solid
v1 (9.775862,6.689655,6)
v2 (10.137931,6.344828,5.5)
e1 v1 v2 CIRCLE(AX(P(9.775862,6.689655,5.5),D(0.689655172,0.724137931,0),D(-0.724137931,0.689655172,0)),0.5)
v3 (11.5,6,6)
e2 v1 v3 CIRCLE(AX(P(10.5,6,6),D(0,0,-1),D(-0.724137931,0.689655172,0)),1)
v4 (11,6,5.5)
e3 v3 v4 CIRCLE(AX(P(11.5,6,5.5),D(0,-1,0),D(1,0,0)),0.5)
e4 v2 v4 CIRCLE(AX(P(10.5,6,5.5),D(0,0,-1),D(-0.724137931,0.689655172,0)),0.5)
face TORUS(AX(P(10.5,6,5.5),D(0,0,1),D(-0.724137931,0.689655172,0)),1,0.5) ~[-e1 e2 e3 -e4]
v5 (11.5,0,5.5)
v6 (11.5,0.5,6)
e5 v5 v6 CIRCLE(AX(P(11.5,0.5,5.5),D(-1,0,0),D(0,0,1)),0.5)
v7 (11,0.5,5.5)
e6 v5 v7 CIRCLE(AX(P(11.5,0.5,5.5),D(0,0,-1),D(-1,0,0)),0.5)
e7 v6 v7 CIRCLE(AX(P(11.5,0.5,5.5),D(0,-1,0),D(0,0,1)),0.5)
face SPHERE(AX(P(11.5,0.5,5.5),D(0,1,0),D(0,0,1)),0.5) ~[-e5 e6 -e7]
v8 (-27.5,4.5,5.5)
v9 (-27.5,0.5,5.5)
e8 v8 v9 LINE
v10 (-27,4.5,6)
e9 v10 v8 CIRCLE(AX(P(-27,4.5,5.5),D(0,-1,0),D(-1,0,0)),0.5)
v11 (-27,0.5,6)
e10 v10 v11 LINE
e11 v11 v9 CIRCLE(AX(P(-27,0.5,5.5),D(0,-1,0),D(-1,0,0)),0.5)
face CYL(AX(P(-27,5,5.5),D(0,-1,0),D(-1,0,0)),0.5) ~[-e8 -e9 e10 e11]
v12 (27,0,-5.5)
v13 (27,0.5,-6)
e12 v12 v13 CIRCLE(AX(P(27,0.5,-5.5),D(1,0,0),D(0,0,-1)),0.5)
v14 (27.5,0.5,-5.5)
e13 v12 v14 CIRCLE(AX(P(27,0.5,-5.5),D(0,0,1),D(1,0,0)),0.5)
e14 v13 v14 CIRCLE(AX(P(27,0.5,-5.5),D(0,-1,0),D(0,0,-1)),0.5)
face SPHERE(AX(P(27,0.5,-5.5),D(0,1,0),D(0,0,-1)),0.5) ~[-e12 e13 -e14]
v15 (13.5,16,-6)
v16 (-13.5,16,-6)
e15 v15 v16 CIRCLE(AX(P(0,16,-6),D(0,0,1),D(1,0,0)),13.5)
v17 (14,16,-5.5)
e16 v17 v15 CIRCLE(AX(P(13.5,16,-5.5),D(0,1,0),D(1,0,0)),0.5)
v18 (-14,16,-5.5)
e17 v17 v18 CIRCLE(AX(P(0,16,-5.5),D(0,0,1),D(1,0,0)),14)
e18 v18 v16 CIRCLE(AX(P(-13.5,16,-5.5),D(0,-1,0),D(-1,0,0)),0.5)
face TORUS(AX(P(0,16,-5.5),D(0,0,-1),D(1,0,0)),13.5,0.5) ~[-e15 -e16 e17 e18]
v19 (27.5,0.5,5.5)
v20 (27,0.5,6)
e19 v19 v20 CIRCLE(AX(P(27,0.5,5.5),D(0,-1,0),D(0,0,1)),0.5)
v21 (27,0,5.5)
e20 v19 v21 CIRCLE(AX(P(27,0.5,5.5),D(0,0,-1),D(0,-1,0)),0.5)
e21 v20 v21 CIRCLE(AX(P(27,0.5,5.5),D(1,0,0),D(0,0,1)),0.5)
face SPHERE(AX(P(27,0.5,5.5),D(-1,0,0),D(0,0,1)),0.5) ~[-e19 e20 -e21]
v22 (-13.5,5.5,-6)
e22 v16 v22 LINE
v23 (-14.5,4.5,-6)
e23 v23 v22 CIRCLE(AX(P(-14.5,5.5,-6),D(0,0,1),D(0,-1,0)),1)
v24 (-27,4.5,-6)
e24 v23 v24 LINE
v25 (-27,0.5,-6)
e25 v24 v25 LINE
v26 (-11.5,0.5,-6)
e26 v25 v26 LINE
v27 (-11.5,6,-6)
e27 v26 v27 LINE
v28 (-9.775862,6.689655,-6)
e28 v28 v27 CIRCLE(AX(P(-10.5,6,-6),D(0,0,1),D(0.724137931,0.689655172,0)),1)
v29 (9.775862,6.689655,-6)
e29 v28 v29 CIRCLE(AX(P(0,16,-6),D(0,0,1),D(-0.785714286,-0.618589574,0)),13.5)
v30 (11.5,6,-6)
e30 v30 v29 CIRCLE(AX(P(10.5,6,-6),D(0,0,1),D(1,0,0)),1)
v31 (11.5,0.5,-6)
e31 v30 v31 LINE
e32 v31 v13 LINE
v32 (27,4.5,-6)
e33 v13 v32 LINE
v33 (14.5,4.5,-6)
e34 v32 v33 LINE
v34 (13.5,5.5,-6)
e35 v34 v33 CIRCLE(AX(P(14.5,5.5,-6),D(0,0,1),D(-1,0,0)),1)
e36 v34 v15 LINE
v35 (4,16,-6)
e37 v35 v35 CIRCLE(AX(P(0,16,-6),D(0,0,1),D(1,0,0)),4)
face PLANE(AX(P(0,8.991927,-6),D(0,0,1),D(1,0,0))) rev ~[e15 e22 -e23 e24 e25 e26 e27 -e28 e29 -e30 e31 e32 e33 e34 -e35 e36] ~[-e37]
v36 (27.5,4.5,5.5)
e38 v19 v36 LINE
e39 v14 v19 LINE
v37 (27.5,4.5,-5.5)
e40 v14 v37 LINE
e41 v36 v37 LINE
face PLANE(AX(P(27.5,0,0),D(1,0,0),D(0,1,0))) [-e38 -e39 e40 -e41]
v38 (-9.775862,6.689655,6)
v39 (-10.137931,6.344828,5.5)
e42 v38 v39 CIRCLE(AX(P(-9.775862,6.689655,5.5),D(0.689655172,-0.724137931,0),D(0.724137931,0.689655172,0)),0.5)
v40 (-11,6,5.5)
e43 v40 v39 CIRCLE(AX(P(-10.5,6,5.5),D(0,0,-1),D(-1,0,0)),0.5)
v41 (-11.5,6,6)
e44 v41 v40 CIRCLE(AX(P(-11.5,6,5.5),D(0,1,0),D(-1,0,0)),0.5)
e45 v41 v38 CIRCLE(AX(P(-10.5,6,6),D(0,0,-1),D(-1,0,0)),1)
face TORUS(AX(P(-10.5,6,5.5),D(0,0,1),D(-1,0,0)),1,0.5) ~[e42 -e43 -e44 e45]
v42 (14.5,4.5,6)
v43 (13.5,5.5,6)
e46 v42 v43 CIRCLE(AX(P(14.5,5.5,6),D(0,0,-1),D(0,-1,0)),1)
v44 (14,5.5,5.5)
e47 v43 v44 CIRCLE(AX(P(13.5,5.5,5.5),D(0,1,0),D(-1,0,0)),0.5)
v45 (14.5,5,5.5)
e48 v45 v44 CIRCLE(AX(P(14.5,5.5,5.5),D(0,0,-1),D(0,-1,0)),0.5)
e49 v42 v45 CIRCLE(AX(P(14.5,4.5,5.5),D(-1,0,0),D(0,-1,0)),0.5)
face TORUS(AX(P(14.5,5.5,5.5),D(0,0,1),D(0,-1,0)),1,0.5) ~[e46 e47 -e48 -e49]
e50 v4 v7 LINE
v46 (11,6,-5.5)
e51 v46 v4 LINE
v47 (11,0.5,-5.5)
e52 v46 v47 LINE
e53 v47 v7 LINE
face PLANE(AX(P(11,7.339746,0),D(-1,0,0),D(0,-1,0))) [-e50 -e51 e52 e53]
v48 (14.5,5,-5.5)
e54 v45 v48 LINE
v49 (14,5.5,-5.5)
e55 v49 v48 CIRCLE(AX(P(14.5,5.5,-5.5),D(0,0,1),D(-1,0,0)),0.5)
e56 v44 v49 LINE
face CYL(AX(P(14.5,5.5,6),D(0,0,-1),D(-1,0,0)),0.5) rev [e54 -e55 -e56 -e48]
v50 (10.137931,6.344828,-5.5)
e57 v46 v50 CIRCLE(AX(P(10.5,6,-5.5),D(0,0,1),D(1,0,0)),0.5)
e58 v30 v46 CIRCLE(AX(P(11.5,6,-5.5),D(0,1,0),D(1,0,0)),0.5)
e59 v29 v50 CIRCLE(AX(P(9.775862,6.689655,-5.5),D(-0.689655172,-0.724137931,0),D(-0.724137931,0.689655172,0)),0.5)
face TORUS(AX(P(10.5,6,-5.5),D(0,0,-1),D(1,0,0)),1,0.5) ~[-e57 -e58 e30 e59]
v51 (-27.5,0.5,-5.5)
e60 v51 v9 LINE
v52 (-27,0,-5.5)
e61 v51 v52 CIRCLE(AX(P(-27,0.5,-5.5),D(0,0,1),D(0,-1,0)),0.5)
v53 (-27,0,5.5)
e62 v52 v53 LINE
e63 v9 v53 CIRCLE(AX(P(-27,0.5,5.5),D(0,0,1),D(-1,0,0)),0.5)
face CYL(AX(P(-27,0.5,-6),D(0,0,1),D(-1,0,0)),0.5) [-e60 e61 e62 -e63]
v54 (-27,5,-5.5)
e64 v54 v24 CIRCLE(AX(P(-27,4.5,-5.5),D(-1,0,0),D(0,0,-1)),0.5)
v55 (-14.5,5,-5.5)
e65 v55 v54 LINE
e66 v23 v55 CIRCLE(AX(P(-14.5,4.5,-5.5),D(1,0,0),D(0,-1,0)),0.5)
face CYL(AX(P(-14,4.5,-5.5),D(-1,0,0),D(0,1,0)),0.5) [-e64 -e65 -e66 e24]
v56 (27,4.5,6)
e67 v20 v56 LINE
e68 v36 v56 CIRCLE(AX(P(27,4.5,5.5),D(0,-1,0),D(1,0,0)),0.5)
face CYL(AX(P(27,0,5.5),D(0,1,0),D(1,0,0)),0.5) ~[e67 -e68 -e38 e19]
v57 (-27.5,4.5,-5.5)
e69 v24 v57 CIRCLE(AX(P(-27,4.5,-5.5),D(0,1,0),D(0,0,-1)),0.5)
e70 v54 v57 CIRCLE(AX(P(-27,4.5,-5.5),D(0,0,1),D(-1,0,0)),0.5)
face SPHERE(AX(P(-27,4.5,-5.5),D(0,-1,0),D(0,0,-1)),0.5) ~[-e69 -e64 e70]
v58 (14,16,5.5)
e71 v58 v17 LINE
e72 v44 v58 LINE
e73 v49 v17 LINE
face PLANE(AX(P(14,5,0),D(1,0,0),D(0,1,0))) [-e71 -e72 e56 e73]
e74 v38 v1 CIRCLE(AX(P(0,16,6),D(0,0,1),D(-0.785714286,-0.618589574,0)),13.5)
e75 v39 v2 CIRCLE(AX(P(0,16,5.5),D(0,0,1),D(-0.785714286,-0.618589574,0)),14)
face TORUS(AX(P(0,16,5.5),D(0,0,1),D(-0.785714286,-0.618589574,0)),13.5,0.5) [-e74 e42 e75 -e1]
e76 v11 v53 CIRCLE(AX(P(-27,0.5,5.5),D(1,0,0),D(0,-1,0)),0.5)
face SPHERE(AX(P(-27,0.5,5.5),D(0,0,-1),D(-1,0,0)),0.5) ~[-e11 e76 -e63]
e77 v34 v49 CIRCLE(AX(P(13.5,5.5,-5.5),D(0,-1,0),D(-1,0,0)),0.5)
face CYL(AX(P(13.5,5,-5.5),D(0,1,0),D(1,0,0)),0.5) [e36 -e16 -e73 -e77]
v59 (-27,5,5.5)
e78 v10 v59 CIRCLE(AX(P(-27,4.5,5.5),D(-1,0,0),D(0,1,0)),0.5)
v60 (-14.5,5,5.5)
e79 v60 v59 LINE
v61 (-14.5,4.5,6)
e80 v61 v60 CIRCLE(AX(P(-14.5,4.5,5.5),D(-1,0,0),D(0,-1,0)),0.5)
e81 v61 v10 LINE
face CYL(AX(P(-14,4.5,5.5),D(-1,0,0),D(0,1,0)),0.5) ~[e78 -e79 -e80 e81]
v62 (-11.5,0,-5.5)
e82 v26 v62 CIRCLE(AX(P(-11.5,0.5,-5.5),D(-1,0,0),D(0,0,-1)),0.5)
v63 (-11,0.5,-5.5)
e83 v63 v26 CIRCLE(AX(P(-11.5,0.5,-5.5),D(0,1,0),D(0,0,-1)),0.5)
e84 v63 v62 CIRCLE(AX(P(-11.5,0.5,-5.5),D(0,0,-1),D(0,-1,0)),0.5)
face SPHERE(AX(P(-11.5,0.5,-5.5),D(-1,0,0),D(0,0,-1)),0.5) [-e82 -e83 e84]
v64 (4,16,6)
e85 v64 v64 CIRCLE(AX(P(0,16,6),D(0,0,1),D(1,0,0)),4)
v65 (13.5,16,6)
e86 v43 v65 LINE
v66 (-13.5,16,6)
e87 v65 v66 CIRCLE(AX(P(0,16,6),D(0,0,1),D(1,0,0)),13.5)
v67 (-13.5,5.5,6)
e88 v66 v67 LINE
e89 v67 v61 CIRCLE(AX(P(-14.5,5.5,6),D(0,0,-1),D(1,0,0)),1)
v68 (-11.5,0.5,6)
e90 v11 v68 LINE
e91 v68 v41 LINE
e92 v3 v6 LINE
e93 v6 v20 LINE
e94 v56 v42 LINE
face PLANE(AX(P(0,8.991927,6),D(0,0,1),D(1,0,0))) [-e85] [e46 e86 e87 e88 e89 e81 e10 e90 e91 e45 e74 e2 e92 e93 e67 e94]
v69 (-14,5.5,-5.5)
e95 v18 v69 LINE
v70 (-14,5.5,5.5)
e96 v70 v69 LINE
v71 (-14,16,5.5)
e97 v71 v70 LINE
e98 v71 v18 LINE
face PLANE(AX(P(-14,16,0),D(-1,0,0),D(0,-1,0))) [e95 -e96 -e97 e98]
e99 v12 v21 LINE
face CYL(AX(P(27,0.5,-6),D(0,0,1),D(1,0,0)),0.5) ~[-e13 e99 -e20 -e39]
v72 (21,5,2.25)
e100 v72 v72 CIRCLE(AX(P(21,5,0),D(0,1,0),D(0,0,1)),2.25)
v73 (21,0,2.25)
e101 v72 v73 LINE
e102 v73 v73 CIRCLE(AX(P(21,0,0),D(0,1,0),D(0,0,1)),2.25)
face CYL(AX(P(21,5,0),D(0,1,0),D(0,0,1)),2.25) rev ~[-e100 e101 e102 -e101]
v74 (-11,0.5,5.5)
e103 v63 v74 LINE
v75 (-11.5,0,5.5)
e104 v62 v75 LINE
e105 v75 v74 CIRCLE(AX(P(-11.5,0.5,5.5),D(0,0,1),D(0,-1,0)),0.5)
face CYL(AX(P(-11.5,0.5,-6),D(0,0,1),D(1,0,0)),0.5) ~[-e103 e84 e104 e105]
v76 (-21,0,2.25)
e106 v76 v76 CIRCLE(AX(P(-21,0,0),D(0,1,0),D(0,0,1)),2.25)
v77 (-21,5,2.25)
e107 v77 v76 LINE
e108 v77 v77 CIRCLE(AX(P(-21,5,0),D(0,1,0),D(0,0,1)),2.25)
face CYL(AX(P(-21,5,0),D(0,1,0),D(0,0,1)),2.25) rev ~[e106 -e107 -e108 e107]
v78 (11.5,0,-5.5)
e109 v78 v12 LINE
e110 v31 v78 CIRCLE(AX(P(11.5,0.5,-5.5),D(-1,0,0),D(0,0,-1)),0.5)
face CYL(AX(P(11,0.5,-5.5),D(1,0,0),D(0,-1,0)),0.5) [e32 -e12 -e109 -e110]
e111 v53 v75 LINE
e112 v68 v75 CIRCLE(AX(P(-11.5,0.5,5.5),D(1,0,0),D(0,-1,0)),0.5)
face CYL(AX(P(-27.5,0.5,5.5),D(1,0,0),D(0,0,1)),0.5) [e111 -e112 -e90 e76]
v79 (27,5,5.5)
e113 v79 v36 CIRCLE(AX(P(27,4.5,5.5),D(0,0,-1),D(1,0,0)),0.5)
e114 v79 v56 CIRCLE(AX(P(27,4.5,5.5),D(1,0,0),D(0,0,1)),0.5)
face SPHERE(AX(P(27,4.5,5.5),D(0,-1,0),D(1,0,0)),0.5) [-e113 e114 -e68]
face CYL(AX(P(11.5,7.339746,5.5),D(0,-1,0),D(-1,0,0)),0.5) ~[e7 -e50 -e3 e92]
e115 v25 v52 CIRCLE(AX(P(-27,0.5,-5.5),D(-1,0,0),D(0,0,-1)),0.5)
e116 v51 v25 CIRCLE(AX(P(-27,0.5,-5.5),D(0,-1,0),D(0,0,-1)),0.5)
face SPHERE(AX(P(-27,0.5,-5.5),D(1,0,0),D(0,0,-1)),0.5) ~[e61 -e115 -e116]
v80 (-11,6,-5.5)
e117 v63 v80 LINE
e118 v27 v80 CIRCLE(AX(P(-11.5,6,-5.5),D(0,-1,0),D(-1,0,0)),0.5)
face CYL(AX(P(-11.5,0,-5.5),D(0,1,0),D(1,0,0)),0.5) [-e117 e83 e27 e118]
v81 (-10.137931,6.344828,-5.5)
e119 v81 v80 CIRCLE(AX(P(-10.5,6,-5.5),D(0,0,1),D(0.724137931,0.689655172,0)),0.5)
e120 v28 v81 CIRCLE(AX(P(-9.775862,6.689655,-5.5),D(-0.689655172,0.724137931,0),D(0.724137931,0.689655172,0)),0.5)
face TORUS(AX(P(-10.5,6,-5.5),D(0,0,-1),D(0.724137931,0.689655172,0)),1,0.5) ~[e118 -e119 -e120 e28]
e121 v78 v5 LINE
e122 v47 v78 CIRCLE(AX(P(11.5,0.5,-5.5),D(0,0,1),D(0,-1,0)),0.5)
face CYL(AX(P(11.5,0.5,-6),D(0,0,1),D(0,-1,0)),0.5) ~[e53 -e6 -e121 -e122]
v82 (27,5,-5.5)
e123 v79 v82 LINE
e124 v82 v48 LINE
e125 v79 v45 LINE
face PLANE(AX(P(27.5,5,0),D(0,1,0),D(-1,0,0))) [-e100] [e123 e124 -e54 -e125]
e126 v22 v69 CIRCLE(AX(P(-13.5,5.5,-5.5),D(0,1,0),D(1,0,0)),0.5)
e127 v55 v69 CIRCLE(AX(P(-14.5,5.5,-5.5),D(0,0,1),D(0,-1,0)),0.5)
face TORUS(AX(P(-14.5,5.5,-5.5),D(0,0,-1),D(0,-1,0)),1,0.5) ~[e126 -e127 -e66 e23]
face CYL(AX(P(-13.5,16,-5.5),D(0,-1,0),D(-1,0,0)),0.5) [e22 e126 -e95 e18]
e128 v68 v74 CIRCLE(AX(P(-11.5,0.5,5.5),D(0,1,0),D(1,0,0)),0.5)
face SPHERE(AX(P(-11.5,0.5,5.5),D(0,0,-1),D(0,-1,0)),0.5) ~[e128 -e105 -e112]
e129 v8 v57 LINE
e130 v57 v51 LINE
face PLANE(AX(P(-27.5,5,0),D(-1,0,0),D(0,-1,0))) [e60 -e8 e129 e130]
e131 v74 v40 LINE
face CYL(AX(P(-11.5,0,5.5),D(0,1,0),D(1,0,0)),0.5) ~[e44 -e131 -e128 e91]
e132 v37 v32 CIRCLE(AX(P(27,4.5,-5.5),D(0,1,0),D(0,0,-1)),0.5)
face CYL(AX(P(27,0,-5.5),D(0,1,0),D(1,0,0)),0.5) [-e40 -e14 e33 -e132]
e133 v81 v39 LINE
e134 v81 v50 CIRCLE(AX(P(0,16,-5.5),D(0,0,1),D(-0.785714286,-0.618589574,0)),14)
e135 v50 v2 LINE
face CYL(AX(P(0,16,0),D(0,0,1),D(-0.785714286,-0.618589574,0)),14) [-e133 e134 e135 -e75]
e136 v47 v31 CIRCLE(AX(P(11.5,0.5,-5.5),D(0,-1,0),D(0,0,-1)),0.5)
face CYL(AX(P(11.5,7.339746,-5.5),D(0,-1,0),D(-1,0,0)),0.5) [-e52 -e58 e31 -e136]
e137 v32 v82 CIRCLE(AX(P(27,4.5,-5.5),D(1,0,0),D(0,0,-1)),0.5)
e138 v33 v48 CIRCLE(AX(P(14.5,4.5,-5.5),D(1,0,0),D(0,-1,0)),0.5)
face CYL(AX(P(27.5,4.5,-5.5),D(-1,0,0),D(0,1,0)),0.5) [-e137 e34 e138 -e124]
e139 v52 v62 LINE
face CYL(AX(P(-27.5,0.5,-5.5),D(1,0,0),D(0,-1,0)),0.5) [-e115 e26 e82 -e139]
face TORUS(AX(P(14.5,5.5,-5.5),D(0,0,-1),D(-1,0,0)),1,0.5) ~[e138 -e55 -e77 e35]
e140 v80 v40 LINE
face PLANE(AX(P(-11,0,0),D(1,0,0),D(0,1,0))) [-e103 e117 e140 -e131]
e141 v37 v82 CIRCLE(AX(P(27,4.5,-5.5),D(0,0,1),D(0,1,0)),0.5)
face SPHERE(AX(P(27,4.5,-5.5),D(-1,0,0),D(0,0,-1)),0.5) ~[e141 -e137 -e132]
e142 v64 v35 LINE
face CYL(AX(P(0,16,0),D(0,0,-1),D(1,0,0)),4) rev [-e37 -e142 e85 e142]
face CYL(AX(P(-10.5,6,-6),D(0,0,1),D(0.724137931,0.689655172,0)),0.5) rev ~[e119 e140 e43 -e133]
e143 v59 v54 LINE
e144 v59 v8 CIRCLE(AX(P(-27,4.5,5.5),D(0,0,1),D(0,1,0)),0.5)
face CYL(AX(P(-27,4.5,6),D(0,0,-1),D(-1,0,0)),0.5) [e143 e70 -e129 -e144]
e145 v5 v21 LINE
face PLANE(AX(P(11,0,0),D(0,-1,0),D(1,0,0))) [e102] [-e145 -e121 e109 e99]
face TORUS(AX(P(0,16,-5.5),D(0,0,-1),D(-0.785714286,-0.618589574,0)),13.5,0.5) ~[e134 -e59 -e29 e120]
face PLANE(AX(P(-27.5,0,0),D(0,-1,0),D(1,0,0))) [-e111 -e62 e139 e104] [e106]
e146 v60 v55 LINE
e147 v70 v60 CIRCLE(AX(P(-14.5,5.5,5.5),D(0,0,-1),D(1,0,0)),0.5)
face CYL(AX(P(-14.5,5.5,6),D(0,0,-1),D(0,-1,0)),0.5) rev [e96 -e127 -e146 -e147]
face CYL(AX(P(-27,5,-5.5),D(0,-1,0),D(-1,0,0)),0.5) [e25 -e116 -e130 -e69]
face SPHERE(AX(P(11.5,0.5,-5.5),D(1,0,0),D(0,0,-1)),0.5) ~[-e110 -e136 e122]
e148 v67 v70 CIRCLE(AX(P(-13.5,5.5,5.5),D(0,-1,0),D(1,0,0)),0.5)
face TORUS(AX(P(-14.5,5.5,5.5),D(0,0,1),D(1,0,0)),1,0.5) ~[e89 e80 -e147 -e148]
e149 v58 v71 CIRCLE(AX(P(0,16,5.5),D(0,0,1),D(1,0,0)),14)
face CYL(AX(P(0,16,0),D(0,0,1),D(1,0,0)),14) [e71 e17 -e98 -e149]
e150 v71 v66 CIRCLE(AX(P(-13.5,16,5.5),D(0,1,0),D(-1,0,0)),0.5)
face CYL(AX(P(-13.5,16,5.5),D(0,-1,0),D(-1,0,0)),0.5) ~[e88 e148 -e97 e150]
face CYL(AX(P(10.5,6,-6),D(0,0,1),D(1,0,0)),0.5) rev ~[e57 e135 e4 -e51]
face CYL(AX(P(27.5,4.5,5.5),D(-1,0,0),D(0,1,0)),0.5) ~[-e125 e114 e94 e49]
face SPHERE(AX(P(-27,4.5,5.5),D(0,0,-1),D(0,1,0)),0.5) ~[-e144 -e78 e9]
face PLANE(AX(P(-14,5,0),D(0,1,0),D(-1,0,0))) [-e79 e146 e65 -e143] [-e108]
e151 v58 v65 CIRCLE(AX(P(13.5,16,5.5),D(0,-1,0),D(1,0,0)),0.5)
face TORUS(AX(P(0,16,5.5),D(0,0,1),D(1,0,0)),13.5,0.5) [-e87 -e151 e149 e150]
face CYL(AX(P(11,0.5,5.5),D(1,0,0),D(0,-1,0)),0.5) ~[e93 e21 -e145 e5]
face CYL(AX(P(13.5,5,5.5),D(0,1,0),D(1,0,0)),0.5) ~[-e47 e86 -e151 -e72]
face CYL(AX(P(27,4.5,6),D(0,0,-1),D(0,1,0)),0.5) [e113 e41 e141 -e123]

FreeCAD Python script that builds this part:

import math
import FreeCAD as App
import Part
import Sketcher
Q = App.Units.Quantity


def edges_at(feature, points):
    """Names of the edges that pass closest to the given points."""
    edges = feature.Shape.Edges
    near = lambda p: min(range(len(edges)), key=lambda i: edges[i].distToShape(Part.Vertex(*p))[0])
    return sorted({f"Edge{near(p) + 1}" for p in points})

doc = App.newDocument("Part")
params = doc.addObject("Spreadsheet::Sheet", "Params")
for row, (alias, value) in enumerate([
    ("sketch1_diameter", "8 mm"),
    ("sketch1_radius", "14 mm"),
    ("sketch1_height", "5 mm"),
    ("sketch1_height2", "11 mm"),
    ("sketch1_width", "16.5 mm"),
    ("pad1_length", "12 mm"),
    ("fillet_radius", "0.5 mm"),
    ("sketch2_diameter", "4.5 mm"),
    ("sketch3_diameter", "4.5 mm"),
], start=1):
    params.set(f"A{row}", alias)
    params.set(f"B{row}", "=" + value)
    params.setAlias(f"B{row}", alias)

body = doc.addObject("PartDesign::Body", "Body")

# Sketch on XY plane
sketch1 = body.newObject("Sketcher::SketchObject", "Sketch")
sketch1.AttachmentSupport = (doc.getObject("XY_Plane"), [""])
sketch1.MapMode = "FlatFace"
sketch1.addGeometry([
    Part.LineSegment(App.Vector(-27.5, 5, 0), App.Vector(-27.5, 0, 0)),  # 0
    Part.LineSegment(App.Vector(-27.5, 0, 0), App.Vector(-11, 0, 0)),  # 1
    Part.LineSegment(App.Vector(-11, 0, 0), App.Vector(-11, 7.3, 0)),  # 2
    Part.ArcOfCircle(Part.Circle(App.Vector(0, 16, 0), App.Vector(0, 0, 1), 14), math.radians(-142), math.radians(-38)),  # 3
    Part.LineSegment(App.Vector(11, 7.3, 0), App.Vector(11, 0, 0)),  # 4
    Part.LineSegment(App.Vector(11, 0, 0), App.Vector(27.5, 0, 0)),  # 5
    Part.LineSegment(App.Vector(27.5, 0, 0), App.Vector(27.5, 5, 0)),  # 6
    Part.LineSegment(App.Vector(27.5, 5, 0), App.Vector(14, 5, 0)),  # 7
    Part.LineSegment(App.Vector(14, 5, 0), App.Vector(14, 16, 0)),  # 8
    Part.ArcOfCircle(Part.Circle(App.Vector(0, 16, 0), App.Vector(0, 0, 1), 14), math.radians(0), math.radians(180)),  # 9
    Part.LineSegment(App.Vector(-14, 16, 0), App.Vector(-14, 5, 0)),  # 10
    Part.LineSegment(App.Vector(-14, 5, 0), App.Vector(-27.5, 5, 0)),  # 11
    Part.Circle(App.Vector(0, 16, 0), App.Vector(0, 0, 1), 4),  # 12
], False)
sketch1.addConstraint([
    Sketcher.Constraint("Coincident", 0, 2, 1, 1),
    Sketcher.Constraint("Coincident", 1, 2, 2, 1),
    Sketcher.Constraint("Coincident", 2, 2, 3, 1),
    Sketcher.Constraint("Coincident", 3, 2, 4, 1),
    Sketcher.Constraint("Coincident", 4, 2, 5, 1),
    Sketcher.Constraint("Coincident", 5, 2, 6, 1),
    Sketcher.Constraint("Coincident", 6, 2, 7, 1),
    Sketcher.Constraint("Coincident", 7, 2, 8, 1),
    Sketcher.Constraint("Tangent", 8, 2, 9, 1),
    Sketcher.Constraint("Tangent", 9, 2, 10, 1),
    Sketcher.Constraint("Coincident", 10, 2, 11, 1),
    Sketcher.Constraint("Coincident", 11, 2, 0, 1),
    Sketcher.Constraint("Vertical", 0),
    Sketcher.Constraint("Horizontal", 1),
    Sketcher.Constraint("Vertical", 2),
    Sketcher.Constraint("Vertical", 4),
    Sketcher.Constraint("Horizontal", 5),
    Sketcher.Constraint("Vertical", 6),
    Sketcher.Constraint("Horizontal", 7),
    Sketcher.Constraint("Vertical", 8),
    Sketcher.Constraint("Vertical", 10),
    Sketcher.Constraint("Horizontal", 11),
    Sketcher.Constraint("Coincident", 9, 3, 3, 3),
    Sketcher.Constraint("Coincident", 12, 3, 3, 3),
    Sketcher.Constraint("Equal", 3, 9),
    Sketcher.Constraint("Symmetric", 1, 2, 4, 2, -1, 1),
    Sketcher.Constraint("Symmetric", 0, 2, 5, 2, -2),
    Sketcher.Constraint("Symmetric", 7, 2, 10, 2, -2),
    Sketcher.Constraint("Diameter", 12, Q("8 mm")),
    Sketcher.Constraint("Radius", 3, Q("14 mm")),
    Sketcher.Constraint("DistanceY", 0, 2, 0, 1, Q("5 mm")),
    Sketcher.Constraint("DistanceY", 8, 1, 8, 2, Q("11 mm")),
    Sketcher.Constraint("DistanceX", 1, 1, 1, 2, Q("16.5 mm")),
    Sketcher.Constraint("DistanceX", 7, 2, 7, 1, Q("13.5 mm")),
])
sketch1.setExpression("Constraints[28]", "Params.sketch1_diameter")
sketch1.setExpression("Constraints[29]", "Params.sketch1_radius")
sketch1.setExpression("Constraints[30]", "Params.sketch1_height")
sketch1.setExpression("Constraints[31]", "Params.sketch1_height2")
sketch1.setExpression("Constraints[32]", "Params.sketch1_width")
pad1 = body.newObject("PartDesign::Pad", "Pad")
pad1.Profile = sketch1
pad1.setExpression("Length", "Params.pad1_length")
pad1.Midplane = True
doc.recompute()

fillet = body.newObject("PartDesign::Fillet", "Fillet")
fillet.Base = (pad1, edges_at(pad1, [
    (11, 3.67, 6),
    (-19.25, 0, -6),
    (-27.5, 2.5, -6),
    (-20.75, 5, -6),
    (-14, 10.5, -6),
    (0, 30, -6),
    (14, 10.5, -6),
    (20.75, 5, -6),
    (19.25, 0, 6),
    (27.5, 2.5, -6),
    (19.25, 0, -6),
    (11, 3.67, -6),
    (0, 2, -6),
    (-11, 3.67, -6),
    (27.5, 2.5, 6),
    (-11, 0, 0),
    (-27.5, 0, 0),
    (-27.5, 5, 0),
    (-14, 5, 0),
    (14, 5, 0),
    (27.5, 5, 0),
    (27.5, 0, 0),
    (11, 0, 0),
    (11, 7.34, 0),
    (-11, 7.34, 0),
    (20.75, 5, 6),
    (14, 10.5, 6),
    (0, 30, 6),
    (-14, 10.5, 6),
    (-20.75, 5, 6),
    (-27.5, 2.5, 6),
    (-19.25, 0, 6),
    (-11, 3.67, 6),
    (0, 2, 6),
]))
fillet.setExpression("Radius", "Params.fillet_radius")

# Sketch on XZ plane
sketch2 = body.newObject("Sketcher::SketchObject", "Sketch001")
sketch2.AttachmentSupport = (doc.getObject("XZ_Plane"), [""])
sketch2.MapMode = "FlatFace"
sketch2.AttachmentOffset = App.Placement(App.Vector(0, 0, -5), App.Rotation())
sketch2.addGeometry(Part.Circle(App.Vector(21, 0, 0), App.Vector(0, 0, 1), 2.2), False)
sketch2.addConstraint([
    Sketcher.Constraint("PointOnObject", 0, 3, -1),
    Sketcher.Constraint("Diameter", 0, Q("4.5 mm")),
    Sketcher.Constraint("DistanceX", -1, 1, 0, 3, Q("21 mm")),
])
sketch2.setExpression("Constraints[1]", "Params.sketch2_diameter")
pocket1 = body.newObject("PartDesign::Pocket", "Pocket")
pocket1.Profile = sketch2
pocket1.Type = "UpToFirst"
pocket1.Reversed = True

# Sketch on XZ plane
sketch3 = body.newObject("Sketcher::SketchObject", "Sketch002")
sketch3.AttachmentSupport = (doc.getObject("XZ_Plane"), [""])
sketch3.MapMode = "FlatFace"
sketch3.AttachmentOffset = App.Placement(App.Vector(0, 0, -5), App.Rotation())
sketch3.addGeometry(Part.Circle(App.Vector(-21, 0, 0), App.Vector(0, 0, 1), 2.2), False)
sketch3.addConstraint([
    Sketcher.Constraint("PointOnObject", 0, 3, -1),
    Sketcher.Constraint("Diameter", 0, Q("4.5 mm")),
    Sketcher.Constraint("DistanceX", 0, 3, -1, 1, Q("21 mm")),
])
sketch3.setExpression("Constraints[1]", "Params.sketch3_diameter")
pocket2 = body.newObject("PartDesign::Pocket", "Pocket001")
pocket2.Profile = sketch3
pocket2.Type = "UpToFirst"
pocket2.Reversed = True

doc.recompute()
